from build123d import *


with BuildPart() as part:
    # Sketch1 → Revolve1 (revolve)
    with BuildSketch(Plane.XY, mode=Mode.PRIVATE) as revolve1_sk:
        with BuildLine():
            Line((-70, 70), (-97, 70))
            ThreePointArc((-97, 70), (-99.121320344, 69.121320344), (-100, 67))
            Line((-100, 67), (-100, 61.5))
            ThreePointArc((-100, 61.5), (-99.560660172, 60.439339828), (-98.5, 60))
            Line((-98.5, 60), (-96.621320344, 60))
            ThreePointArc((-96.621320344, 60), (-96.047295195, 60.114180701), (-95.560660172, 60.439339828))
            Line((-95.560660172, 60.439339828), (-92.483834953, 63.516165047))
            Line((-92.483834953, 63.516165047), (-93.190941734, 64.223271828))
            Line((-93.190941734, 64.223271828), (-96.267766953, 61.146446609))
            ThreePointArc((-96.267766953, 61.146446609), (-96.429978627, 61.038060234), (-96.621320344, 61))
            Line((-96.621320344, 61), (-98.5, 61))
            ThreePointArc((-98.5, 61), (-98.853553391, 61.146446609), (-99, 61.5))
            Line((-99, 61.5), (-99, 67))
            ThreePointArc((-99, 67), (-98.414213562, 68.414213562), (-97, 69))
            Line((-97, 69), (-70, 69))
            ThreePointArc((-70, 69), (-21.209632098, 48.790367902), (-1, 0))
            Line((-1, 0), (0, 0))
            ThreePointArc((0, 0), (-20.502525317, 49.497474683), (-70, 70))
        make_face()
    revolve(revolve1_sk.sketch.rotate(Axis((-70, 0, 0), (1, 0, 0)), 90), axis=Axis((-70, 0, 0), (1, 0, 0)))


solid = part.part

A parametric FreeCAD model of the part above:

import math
import FreeCAD as App
import Part
import Sketcher

V = App.Vector
Q = App.Units.Quantity

doc = App.newDocument("Part")
body = doc.addObject("PartDesign::Body", "Body")

# Sketch on XY plane
sketch1 = body.newObject("Sketcher::SketchObject", "Sketch")
sketch1.AttachmentSupport = (doc.getObject("XY_Plane"), [""])
sketch1.MapMode = "FlatFace"
sketch1.addGeometry([
    Part.LineSegment(V(-70, 70, 0), V(-97, 70, 0)),  # 0
    Part.ArcOfCircle(Part.Circle(V(-97, 67, 0), V(0, 0, 1), 3), math.radians(90), math.radians(180)),  # 1
    Part.LineSegment(V(-100, 67, 0), V(-100, 61.5, 0)),  # 2
    Part.ArcOfCircle(Part.Circle(V(-98.5, 61.5, 0), V(0, 0, 1), 1.5), math.radians(180), math.radians(270)),  # 3
    Part.LineSegment(V(-98.5, 60, 0), V(-96.62, 60, 0)),  # 4
    Part.ArcOfCircle(Part.Circle(V(-96.62, 61.5, 0), V(0, 0, 1), 1.5), math.radians(-90), math.radians(-45)),  # 5
    Part.LineSegment(V(-95.56, 60.44, 0), V(-92.48, 63.52, 0)),  # 6
    Part.LineSegment(V(-92.48, 63.52, 0), V(-93.19, 64.22, 0)),  # 7
    Part.LineSegment(V(-93.19, 64.22, 0), V(-96.27, 61.15, 0)),  # 8
    Part.ArcOfCircle(Part.Circle(V(-96.62, 61.5, 0), V(0, 0, 1), 0.5), math.radians(-90), math.radians(-45)),  # 9
    Part.LineSegment(V(-96.62, 61, 0), V(-98.5, 61, 0)),  # 10
    Part.ArcOfCircle(Part.Circle(V(-98.5, 61.5, 0), V(0, 0, 1), 0.5), math.radians(180), math.radians(270)),  # 11
    Part.LineSegment(V(-99, 61.5, 0), V(-99, 67, 0)),  # 12
    Part.ArcOfCircle(Part.Circle(V(-97, 67, 0), V(0, 0, 1), 2), math.radians(90), math.radians(180)),  # 13
    Part.LineSegment(V(-97, 69, 0), V(-70, 69, 0)),  # 14
    Part.ArcOfCircle(Part.Circle(V(-70, 0, 0), V(0, 0, 1), 69), math.radians(0), math.radians(90)),  # 15
    Part.LineSegment(V(-1, 0, 0), V(0, 0, 0)),  # 16
    Part.ArcOfCircle(Part.Circle(V(-70, 0, 0), V(0, 0, 1), 70), math.radians(0), math.radians(90)),  # 17
], False)
sketch1.addConstraint([
    Sketcher.Constraint("Tangent", 0, 2, 1, 1),
    Sketcher.Constraint("Tangent", 1, 2, 2, 1),
    Sketcher.Constraint("Tangent", 2, 2, 3, 1),
    Sketcher.Constraint("Tangent", 3, 2, 4, 1),
    Sketcher.Constraint("Tangent", 4, 2, 5, 1),
    Sketcher.Constraint("Tangent", 5, 2, 6, 1),
    Sketcher.Constraint("Coincident", 6, 2, 7, 1),
    Sketcher.Constraint("Coincident", 7, 2, 8, 1),
    Sketcher.Constraint("Tangent", 8, 2, 9, 2),
    Sketcher.Constraint("Tangent", 9, 1, 10, 1),
    Sketcher.Constraint("Tangent", 10, 2, 11, 2),
    Sketcher.Constraint("Tangent", 11, 1, 12, 1),
    Sketcher.Constraint("Tangent", 12, 2, 13, 2),
    Sketcher.Constraint("Tangent", 13, 1, 14, 1),
    Sketcher.Constraint("Tangent", 14, 2, 15, 2),
    Sketcher.Constraint("Coincident", 15, 1, 16, 1),
    Sketcher.Constraint("Coincident", 16, 2, 17, 1),
    Sketcher.Constraint("Tangent", 17, 2, 0, 1),
    Sketcher.Constraint("Horizontal", 0),
    Sketcher.Constraint("Vertical", 2),
    Sketcher.Constraint("Horizontal", 4),
    Sketcher.Constraint("Horizontal", 10),
    Sketcher.Constraint("Vertical", 12),
    Sketcher.Constraint("Horizontal", 14),
    Sketcher.Constraint("Horizontal", 16),
    Sketcher.Constraint("Coincident", 16, 2, -1, 1),
    Sketcher.Constraint("Coincident", 9, 3, 5, 3),
    Sketcher.Constraint("Coincident", 11, 3, 3, 3),
    Sketcher.Constraint("Coincident", 13, 3, 1, 3),
    Sketcher.Constraint("Coincident", 17, 3, 15, 3),
    Sketcher.Constraint("Equal", 3, 5),
    Sketcher.Constraint("PointOnObject", 15, 3, -1),
    Sketcher.Constraint("Perpendicular", 6, 7),
    Sketcher.Constraint("Perpendicular", 7, 8),
    Sketcher.Constraint("Radius", 1, 3.0),
    Sketcher.Constraint("Radius", 13, 2.0),
    Sketcher.Constraint("Radius", 15, 69.0),
    Sketcher.Constraint("Radius", 3, 1.5),
    Sketcher.Constraint("DistanceX", 0, 2, 0, 1, 27.0),
    Sketcher.Constraint("Angle", 6, Q("45 deg")),
    Sketcher.Constraint("DistanceY", 2, 2, 2, 1, 5.5),
    Sketcher.Constraint("DistanceX", 4, 1, 4, 2, 1.87868),
    Sketcher.Constraint("DistanceX", 7, 2, -1, 1, 93.190942),
])
revolution = body.newObject("PartDesign::Revolution", "Revolution")
revolution.Profile = sketch1
revolution.ReferenceAxis = (sketch1, ["H_Axis"])
revolution.Angle = 360

doc.recompute()
